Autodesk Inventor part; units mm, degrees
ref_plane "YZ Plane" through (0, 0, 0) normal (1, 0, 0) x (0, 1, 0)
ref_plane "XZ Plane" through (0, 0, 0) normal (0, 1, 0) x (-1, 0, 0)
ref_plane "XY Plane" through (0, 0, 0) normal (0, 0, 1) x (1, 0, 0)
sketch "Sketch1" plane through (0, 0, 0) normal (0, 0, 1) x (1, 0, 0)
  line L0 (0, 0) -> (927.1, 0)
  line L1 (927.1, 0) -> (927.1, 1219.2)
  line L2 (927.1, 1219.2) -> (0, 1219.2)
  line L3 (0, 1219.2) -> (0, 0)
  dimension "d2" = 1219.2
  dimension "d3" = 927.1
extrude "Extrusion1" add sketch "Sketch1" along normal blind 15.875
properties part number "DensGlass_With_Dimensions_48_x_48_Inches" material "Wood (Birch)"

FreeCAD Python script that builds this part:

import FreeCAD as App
import Part
import Sketcher
Q = App.Units.Quantity

doc = App.newDocument("Part")
body = doc.addObject("PartDesign::Body", "Body")

# Sketch on XY plane
sketch1 = body.newObject("Sketcher::SketchObject", "Sketch")
sketch1.AttachmentSupport = (doc.getObject("XY_Plane"), [""])
sketch1.MapMode = "FlatFace"
sketch1.addGeometry([
    Part.LineSegment(App.Vector(0, 1219.2, 0), App.Vector(0, 0, 0)),
    Part.LineSegment(App.Vector(0, 0, 0), App.Vector(927.1, 0, 0)),
    Part.LineSegment(App.Vector(927.1, 0, 0), App.Vector(927.1, 1219.2, 0)),
    Part.LineSegment(App.Vector(927.1, 1219.2, 0), App.Vector(0, 1219.2, 0)),
], False)
sketch1.addConstraint([
    Sketcher.Constraint("Coincident", 0, 2, 1, 1),
    Sketcher.Constraint("Coincident", 1, 2, 2, 1),
    Sketcher.Constraint("Coincident", 2, 2, 3, 1),
    Sketcher.Constraint("Coincident", 3, 2, 0, 1),
    Sketcher.Constraint("Vertical", 0),
    Sketcher.Constraint("Horizontal", 1),
    Sketcher.Constraint("Vertical", 2),
    Sketcher.Constraint("Horizontal", 3),
    Sketcher.Constraint("Coincident", 0, 2, -1, 1),
    Sketcher.Constraint("DistanceY", 0, 2, 0, 1, Q("48 in")),
    Sketcher.Constraint("DistanceX", 1, 1, 1, 2, Q("36.5 in")),
])
pad1 = body.newObject("PartDesign::Pad", "Pad")
pad1.Profile = sketch1
pad1.Length = Q("0.625 in")

doc.recompute()
